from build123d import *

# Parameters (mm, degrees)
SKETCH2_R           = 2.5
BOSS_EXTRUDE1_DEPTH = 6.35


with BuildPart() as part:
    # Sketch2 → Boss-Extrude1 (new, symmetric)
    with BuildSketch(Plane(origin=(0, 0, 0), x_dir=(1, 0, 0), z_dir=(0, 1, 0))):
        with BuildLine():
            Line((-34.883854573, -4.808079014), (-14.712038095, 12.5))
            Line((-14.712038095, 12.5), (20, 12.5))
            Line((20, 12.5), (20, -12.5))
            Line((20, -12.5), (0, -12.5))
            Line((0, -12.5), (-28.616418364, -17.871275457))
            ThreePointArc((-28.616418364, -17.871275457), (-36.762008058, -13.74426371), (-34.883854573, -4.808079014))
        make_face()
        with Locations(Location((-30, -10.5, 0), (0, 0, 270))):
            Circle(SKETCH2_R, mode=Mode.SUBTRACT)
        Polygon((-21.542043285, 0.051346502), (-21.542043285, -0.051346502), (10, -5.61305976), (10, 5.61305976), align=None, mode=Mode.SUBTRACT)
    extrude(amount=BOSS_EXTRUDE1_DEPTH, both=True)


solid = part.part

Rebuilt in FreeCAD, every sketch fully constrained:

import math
import FreeCAD as App
import Part
import Sketcher
Q = App.Units.Quantity

doc = App.newDocument("Part")
params = doc.addObject("Spreadsheet::Sheet", "Params")
for row, (alias, value) in enumerate([
    ("sketch1_diameter", "5 mm"),
    ("sketch1_radius", "7.5 mm"),
    ("sketch1_width", "20 mm"),
    ("sketch1_height", "25 mm"),
    ("pad1_length", "12.7 mm"),
], start=1):
    params.set(f"A{row}", alias)
    params.set(f"B{row}", "=" + value)
    params.setAlias(f"B{row}", alias)

body = doc.addObject("PartDesign::Body", "Body")

sketch1 = doc.addObject("Sketcher::SketchObject", "Sketch")
body.addObject(sketch1)
sketch1.AttachmentSupport = (doc.XZ_Plane, [""])
sketch1.MapMode = "FlatFace"
sketch1.addGeometry([
    Part.LineSegment(App.Vector(-14.71, -12.5, 0), App.Vector(-34.88, 4.81, 0)),
    Part.ArcOfCircle(Part.Circle(App.Vector(-30, 10.5, 0), App.Vector(0, 0, 1), 7.5), math.radians(79), math.radians(229)),
    Part.LineSegment(App.Vector(-28.62, 17.87, 0), App.Vector(0, 12.5, 0)),
    Part.LineSegment(App.Vector(0, 12.5, 0), App.Vector(20, 12.5, 0)),
    Part.LineSegment(App.Vector(20, 12.5, 0), App.Vector(20, -12.5, 0)),
    Part.LineSegment(App.Vector(20, -12.5, 0), App.Vector(-14.71, -12.5, 0)),
    Part.Circle(App.Vector(-30, 10.5, 0), App.Vector(0, 0, 1), 2.5),
    Part.LineSegment(App.Vector(-21.54, -0.05, 0), App.Vector(10, -5.61, 0)),
    Part.LineSegment(App.Vector(10, -5.61, 0), App.Vector(10, 5.61, 0)),
    Part.LineSegment(App.Vector(10, 5.61, 0), App.Vector(-21.54, 0.05, 0)),
    Part.LineSegment(App.Vector(-21.54, 0.05, 0), App.Vector(-21.54, -0.05, 0)),
], False)
sketch1.addConstraint([
    Sketcher.Constraint("Tangent", 0, 2, 1, 2),
    Sketcher.Constraint("Tangent", 1, 1, 2, 1),
    Sketcher.Constraint("Coincident", 2, 2, 3, 1),
    Sketcher.Constraint("Coincident", 3, 2, 4, 1),
    Sketcher.Constraint("Coincident", 4, 2, 5, 1),
    Sketcher.Constraint("Coincident", 5, 2, 0, 1),
    Sketcher.Constraint("Coincident", 7, 2, 8, 1),
    Sketcher.Constraint("Coincident", 8, 2, 9, 1),
    Sketcher.Constraint("Coincident", 9, 2, 10, 1),
    Sketcher.Constraint("Coincident", 10, 2, 7, 1),
    Sketcher.Constraint("Horizontal", 3),
    Sketcher.Constraint("Vertical", 4),
    Sketcher.Constraint("Horizontal", 5),
    Sketcher.Constraint("Vertical", 8),
    Sketcher.Constraint("Vertical", 10),
    Sketcher.Constraint("Coincident", 6, 3, 1, 3),
    Sketcher.Constraint("PointOnObject", 2, 2, -2),
    Sketcher.Constraint("Equal", 7, 9),
    Sketcher.Constraint("Diameter", 6, 5.0),
    Sketcher.Constraint("Radius", 1, 7.5),
    Sketcher.Constraint("DistanceX", 3, 1, 3, 2, 20.0),
    Sketcher.Constraint("DistanceY", 4, 2, 4, 1, 25.0),
    Sketcher.Constraint("Angle", 7, Q("-10 deg")),
    Sketcher.Constraint("DistanceX", 1, 3, -1, 1, 30.0),
    Sketcher.Constraint("DistanceX", -1, 1, 7, 2, 10.0),
    Sketcher.Constraint("DistanceY", 1, 3, 2, 2, 2.0),
    Sketcher.Constraint("DistanceY", -1, 1, 1, 3, 10.5),
    Sketcher.Constraint("DistanceX", 5, 2, 5, 1, 34.712038),
    Sketcher.Constraint("DistanceY", 8, 1, 8, 2, 11.22612),
    Sketcher.Constraint("Distance", 7, 32.02863),
    Sketcher.Constraint("DistanceY", 7, 2, -1, 1, 5.61306),
])
sketch1.setExpression("Constraints[18]", "Params.sketch1_diameter")
sketch1.setExpression("Constraints[19]", "Params.sketch1_radius")
sketch1.setExpression("Constraints[20]", "Params.sketch1_width")
sketch1.setExpression("Constraints[21]", "Params.sketch1_height")
pad1 = doc.addObject("PartDesign::Pad", "Pad")
body.addObject(pad1)
pad1.Profile = sketch1
pad1.setExpression("Length", "Params.pad1_length")
pad1.Midplane = True

doc.recompute()
